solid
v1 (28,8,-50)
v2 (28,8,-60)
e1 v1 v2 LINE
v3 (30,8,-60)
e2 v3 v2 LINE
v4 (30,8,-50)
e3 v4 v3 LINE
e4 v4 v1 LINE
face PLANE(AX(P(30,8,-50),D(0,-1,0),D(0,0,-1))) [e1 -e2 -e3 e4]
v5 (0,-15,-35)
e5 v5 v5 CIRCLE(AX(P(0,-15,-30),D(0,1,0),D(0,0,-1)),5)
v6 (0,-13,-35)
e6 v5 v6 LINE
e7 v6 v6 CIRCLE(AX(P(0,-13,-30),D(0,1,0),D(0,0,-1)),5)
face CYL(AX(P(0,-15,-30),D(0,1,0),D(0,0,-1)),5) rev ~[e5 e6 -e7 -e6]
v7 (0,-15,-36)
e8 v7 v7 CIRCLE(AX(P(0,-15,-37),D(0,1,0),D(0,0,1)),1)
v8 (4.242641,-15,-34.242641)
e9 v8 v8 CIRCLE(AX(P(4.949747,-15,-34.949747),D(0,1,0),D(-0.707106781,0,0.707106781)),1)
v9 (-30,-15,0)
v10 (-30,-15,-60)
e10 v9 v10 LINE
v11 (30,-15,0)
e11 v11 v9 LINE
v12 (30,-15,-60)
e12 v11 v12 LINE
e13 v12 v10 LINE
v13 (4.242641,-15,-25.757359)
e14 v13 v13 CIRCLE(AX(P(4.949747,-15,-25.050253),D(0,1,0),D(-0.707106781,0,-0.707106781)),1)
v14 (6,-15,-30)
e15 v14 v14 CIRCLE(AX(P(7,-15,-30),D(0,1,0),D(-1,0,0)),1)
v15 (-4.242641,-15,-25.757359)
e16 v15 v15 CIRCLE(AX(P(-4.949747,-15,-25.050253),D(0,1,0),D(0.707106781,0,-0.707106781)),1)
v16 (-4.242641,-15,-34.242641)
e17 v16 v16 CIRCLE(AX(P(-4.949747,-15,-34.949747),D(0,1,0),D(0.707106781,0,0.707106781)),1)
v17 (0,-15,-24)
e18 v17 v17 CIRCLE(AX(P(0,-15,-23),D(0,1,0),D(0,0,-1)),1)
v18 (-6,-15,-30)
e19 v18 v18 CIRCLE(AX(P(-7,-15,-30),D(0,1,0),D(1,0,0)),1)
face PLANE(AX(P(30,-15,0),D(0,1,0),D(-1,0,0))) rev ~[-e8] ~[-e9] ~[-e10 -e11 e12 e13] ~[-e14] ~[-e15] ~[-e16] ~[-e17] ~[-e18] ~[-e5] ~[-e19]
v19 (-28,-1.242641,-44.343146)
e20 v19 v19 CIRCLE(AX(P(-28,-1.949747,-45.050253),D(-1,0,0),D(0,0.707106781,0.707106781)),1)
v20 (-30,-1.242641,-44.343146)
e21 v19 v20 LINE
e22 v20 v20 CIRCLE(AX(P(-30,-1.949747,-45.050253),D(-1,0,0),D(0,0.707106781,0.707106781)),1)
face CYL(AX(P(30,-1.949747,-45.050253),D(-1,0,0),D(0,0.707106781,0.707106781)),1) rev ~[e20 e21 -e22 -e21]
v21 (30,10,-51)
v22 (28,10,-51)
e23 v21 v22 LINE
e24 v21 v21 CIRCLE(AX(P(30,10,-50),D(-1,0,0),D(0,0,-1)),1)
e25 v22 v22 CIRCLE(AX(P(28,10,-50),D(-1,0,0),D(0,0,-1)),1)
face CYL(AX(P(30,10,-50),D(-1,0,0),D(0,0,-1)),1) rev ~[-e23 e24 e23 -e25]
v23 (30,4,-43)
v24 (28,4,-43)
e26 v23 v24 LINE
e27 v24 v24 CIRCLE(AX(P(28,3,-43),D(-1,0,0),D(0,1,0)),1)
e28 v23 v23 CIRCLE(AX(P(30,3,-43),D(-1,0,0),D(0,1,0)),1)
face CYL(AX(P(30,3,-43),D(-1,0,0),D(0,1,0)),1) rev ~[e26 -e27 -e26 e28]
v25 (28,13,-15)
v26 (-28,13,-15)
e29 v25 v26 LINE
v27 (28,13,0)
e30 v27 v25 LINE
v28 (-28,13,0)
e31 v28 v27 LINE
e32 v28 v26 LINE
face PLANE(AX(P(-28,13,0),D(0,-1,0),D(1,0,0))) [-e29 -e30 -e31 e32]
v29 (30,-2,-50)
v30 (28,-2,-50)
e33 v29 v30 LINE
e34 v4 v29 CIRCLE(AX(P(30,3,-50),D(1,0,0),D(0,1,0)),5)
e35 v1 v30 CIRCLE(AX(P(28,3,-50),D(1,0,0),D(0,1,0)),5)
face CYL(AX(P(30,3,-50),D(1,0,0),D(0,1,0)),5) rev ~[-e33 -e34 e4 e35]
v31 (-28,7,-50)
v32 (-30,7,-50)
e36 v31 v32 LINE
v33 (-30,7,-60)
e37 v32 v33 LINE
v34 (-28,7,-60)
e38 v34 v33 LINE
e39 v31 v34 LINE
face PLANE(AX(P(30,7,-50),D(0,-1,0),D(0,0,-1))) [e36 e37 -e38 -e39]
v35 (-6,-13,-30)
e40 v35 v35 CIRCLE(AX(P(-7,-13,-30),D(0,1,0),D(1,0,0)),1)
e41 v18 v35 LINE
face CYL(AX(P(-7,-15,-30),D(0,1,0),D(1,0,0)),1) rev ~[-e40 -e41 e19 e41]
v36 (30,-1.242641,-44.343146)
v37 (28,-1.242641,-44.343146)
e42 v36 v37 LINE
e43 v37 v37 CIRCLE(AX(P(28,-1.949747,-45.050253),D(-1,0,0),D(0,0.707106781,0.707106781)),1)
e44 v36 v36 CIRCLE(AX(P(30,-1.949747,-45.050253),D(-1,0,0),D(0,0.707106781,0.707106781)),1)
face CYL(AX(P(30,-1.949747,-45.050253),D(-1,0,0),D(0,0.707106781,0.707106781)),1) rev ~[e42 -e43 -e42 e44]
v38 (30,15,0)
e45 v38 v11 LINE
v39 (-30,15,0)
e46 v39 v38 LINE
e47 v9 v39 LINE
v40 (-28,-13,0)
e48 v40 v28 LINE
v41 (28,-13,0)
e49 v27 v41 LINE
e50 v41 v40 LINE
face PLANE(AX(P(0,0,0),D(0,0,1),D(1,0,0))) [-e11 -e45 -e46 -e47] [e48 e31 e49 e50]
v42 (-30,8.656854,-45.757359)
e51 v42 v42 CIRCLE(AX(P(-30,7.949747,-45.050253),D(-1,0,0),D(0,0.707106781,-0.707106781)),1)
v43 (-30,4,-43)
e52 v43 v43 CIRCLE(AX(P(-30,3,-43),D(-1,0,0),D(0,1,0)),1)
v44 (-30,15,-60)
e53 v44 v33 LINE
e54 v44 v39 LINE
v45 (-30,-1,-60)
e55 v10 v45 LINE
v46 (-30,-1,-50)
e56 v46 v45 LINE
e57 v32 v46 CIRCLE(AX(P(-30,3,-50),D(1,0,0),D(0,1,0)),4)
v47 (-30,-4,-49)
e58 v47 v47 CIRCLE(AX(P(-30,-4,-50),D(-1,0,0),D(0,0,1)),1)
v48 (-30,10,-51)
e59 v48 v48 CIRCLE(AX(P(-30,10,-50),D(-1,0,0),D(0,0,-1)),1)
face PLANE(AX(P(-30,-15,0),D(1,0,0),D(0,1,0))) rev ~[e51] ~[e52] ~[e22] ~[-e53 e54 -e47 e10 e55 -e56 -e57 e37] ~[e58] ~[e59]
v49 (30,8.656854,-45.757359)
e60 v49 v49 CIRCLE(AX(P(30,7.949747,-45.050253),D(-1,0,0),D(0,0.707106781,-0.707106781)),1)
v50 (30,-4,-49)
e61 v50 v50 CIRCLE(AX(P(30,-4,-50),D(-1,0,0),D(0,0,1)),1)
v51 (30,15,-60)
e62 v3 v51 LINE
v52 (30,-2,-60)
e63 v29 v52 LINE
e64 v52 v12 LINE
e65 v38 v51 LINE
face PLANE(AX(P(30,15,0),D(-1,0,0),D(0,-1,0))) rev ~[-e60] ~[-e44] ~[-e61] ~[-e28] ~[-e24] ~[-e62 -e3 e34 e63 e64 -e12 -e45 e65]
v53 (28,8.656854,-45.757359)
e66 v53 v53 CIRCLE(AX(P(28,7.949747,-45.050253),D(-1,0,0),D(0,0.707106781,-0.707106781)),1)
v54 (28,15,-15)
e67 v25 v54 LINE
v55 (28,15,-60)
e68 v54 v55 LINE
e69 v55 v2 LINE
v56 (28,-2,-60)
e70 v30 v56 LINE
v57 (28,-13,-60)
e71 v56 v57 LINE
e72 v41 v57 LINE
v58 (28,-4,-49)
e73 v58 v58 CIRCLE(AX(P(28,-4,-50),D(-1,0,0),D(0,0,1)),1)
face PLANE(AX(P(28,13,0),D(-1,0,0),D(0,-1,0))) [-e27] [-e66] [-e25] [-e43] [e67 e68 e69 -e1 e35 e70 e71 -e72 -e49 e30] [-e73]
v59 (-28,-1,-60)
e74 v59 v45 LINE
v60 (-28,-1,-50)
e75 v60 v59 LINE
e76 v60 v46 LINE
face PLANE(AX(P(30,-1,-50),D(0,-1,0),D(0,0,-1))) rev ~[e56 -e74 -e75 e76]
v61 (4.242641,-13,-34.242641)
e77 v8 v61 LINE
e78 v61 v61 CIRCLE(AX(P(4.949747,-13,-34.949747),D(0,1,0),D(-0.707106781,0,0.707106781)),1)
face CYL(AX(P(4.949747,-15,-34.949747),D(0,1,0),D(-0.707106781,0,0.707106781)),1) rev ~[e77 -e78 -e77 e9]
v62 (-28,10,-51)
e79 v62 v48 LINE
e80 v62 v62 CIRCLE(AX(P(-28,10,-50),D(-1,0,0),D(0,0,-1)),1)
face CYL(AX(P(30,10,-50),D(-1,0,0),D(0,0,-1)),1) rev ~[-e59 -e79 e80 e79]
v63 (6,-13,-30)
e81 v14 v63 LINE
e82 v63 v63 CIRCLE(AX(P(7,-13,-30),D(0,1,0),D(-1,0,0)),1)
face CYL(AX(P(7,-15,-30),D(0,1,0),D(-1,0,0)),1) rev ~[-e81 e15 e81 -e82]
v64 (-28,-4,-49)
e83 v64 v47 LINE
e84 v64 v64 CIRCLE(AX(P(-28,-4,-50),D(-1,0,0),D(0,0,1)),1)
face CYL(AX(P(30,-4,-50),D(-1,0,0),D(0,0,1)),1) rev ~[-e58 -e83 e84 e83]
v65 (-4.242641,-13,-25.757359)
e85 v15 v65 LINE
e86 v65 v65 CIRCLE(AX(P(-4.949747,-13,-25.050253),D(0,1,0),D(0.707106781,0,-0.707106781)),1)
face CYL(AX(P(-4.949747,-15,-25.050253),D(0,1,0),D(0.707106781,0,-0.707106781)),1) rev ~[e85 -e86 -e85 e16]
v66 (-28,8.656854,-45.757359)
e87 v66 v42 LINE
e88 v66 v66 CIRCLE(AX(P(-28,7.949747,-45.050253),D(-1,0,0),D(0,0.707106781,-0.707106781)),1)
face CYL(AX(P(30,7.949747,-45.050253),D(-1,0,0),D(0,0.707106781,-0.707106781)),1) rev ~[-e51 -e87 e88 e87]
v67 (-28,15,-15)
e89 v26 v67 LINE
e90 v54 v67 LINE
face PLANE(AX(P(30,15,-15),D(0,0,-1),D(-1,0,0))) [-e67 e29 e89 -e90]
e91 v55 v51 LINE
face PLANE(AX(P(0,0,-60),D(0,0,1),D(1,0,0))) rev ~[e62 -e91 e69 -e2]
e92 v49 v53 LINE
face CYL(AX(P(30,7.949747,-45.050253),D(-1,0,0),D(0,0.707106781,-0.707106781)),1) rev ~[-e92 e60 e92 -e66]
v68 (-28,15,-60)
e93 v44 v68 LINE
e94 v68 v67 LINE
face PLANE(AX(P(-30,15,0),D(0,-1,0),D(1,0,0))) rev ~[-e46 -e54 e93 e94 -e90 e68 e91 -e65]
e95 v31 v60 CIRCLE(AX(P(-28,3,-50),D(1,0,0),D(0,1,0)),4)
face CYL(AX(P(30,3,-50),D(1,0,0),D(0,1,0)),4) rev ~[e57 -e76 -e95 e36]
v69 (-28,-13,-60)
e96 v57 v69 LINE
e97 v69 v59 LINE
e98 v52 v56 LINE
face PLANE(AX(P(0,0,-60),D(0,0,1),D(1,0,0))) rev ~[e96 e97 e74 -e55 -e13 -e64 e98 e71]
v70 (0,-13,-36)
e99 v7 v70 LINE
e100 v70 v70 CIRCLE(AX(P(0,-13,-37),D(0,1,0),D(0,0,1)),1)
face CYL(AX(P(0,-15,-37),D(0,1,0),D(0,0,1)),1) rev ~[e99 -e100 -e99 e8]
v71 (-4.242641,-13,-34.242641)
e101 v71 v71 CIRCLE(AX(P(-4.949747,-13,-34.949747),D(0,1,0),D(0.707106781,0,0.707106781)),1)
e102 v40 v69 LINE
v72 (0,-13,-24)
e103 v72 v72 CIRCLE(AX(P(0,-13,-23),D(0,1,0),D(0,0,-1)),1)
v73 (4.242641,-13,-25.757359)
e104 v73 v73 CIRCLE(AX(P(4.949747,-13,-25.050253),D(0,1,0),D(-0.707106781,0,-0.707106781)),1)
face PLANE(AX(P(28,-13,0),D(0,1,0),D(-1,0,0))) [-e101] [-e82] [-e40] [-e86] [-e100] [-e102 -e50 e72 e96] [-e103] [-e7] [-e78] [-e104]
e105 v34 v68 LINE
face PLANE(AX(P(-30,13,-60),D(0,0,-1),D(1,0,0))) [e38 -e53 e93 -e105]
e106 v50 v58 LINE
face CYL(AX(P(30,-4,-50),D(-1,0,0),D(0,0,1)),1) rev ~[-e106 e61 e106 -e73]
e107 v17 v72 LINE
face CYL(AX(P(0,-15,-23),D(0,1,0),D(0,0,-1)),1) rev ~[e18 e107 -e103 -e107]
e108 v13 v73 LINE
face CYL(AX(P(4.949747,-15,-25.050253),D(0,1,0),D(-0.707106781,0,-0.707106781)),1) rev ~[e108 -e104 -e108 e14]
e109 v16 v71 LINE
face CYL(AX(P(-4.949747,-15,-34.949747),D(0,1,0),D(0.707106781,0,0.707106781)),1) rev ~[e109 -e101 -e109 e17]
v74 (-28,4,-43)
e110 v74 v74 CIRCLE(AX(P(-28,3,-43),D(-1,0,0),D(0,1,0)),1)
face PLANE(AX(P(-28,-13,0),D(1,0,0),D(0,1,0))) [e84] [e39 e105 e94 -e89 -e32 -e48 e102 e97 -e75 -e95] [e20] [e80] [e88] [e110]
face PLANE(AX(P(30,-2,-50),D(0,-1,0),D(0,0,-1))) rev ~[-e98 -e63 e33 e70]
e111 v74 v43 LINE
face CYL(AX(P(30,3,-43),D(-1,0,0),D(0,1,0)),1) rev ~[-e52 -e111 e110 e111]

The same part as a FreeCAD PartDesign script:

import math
import FreeCAD as App
import Part
import Sketcher


def add_polygon(sketch, points):
    """Adds a closed chain of lines whose ends are joined by coincident constraints."""
    first, n = sketch.GeometryCount, len(points)
    for a, b in zip(points, points[1:] + points[:1]):
        sketch.addGeometry(Part.LineSegment(App.Vector(*a, 0), App.Vector(*b, 0)), False)
    for i in range(n):
        sketch.addConstraint(Sketcher.Constraint("Coincident", first + i, 2, first + (i + 1) % n, 1))

doc = App.newDocument("Part")
body = doc.addObject("PartDesign::Body", "Body")

# Sketch on XY plane
sketch1 = body.newObject("Sketcher::SketchObject", "Sketch")
sketch1.AttachmentSupport = (doc.getObject("XY_Plane"), [""])
sketch1.MapMode = "FlatFace"
add_polygon(sketch1, [(30, 15), (-30, 15), (-30, -15), (30, -15)])  # lines 0-3
add_polygon(sketch1, [(-28, -13), (-28, 13), (28, 13), (28, -13)])  # lines 4-7
sketch1.addConstraint(Sketcher.Constraint("Horizontal", 0))
sketch1.addConstraint(Sketcher.Constraint("Vertical", 1))
sketch1.addConstraint(Sketcher.Constraint("Horizontal", 2))
sketch1.addConstraint(Sketcher.Constraint("Vertical", 3))
sketch1.addConstraint(Sketcher.Constraint("Vertical", 4))
sketch1.addConstraint(Sketcher.Constraint("Horizontal", 5))
sketch1.addConstraint(Sketcher.Constraint("Vertical", 6))
sketch1.addConstraint(Sketcher.Constraint("Horizontal", 7))
sketch1.addConstraint(Sketcher.Constraint("Symmetric", 0, 2, 2, 2, -1, 1))
sketch1.addConstraint(Sketcher.Constraint("Symmetric", 4, 2, 6, 2, -1, 1))
sketch1.addConstraint(Sketcher.Constraint("DistanceX", 0, 2, 0, 1, 60.0))
sketch1.addConstraint(Sketcher.Constraint("DistanceX", 5, 1, 5, 2, 56.0))
sketch1.addConstraint(Sketcher.Constraint("DistanceY", 1, 2, 1, 1, 30.0))
sketch1.addConstraint(Sketcher.Constraint("DistanceY", 4, 1, 4, 2, 26.0))
pad1 = body.newObject("PartDesign::Pad", "Pad")
pad1.Profile = sketch1
pad1.Length = 60
pad1.Reversed = True

# Sketch on XZ plane
sketch2 = body.newObject("Sketcher::SketchObject", "Sketch001")
sketch2.AttachmentSupport = (doc.getObject("XZ_Plane"), [""])
sketch2.MapMode = "FlatFace"
sketch2.AttachmentOffset = App.Placement(App.Vector(0, 0, -15), App.Rotation())
add_polygon(sketch2, [(-30, -15), (30, -15), (30, -60), (-30, -60)])  # lines 0-3
sketch2.addConstraint(Sketcher.Constraint("Horizontal", 0))
sketch2.addConstraint(Sketcher.Constraint("Vertical", 1))
sketch2.addConstraint(Sketcher.Constraint("Horizontal", 2))
sketch2.addConstraint(Sketcher.Constraint("Vertical", 3))
sketch2.addConstraint(Sketcher.Constraint("DistanceY", 0, 2, -1, 1, 15.0))
sketch2.addConstraint(Sketcher.Constraint("DistanceX", 0, 1, 0, 2, 60.0))
sketch2.addConstraint(Sketcher.Constraint("DistanceY", 1, 2, 1, 1, 45.0))
sketch2.addConstraint(Sketcher.Constraint("DistanceX", -1, 1, 0, 2, 30.0))
pocket1 = body.newObject("PartDesign::Pocket", "Pocket")
pocket1.Profile = sketch2
pocket1.Length = 2
pocket1.Reversed = True

# Sketch on YZ plane
sketch3 = body.newObject("Sketcher::SketchObject", "Sketch002")
sketch3.AttachmentSupport = (doc.getObject("YZ_Plane"), [""])
sketch3.MapMode = "FlatFace"
sketch3.AttachmentOffset = App.Placement(App.Vector(0, 0, 30), App.Rotation())
sketch3.addGeometry(Part.LineSegment(App.Vector(-1, -60, 0), App.Vector(7, -60, 0)), False)
sketch3.addGeometry(Part.LineSegment(App.Vector(7, -60, 0), App.Vector(7, -50, 0)), False)
sketch3.addGeometry(Part.ArcOfCircle(Part.Circle(App.Vector(3, -50, 0), App.Vector(0, 0, 1), 4), math.radians(0), math.radians(180)), False)
sketch3.addGeometry(Part.LineSegment(App.Vector(-1, -50, 0), App.Vector(-1, -60, 0)), False)
sketch3.addConstraint(Sketcher.Constraint("Coincident", 0, 2, 1, 1))
sketch3.addConstraint(Sketcher.Constraint("Tangent", 1, 2, 2, 1))
sketch3.addConstraint(Sketcher.Constraint("Tangent", 2, 2, 3, 1))
sketch3.addConstraint(Sketcher.Constraint("Coincident", 3, 2, 0, 1))
sketch3.addConstraint(Sketcher.Constraint("Horizontal", 0))
sketch3.addConstraint(Sketcher.Constraint("Vertical", 1))
sketch3.addConstraint(Sketcher.Constraint("Vertical", 3))
sketch3.addConstraint(Sketcher.Constraint("Radius", 2, 4.0))
sketch3.addConstraint(Sketcher.Constraint("DistanceY", 1, 1, 1, 2, 10.0))
sketch3.addConstraint(Sketcher.Constraint("DistanceX", -1, 1, 2, 3, 3.0))
sketch3.addConstraint(Sketcher.Constraint("DistanceY", 2, 3, -1, 1, 50.0))
pocket2 = body.newObject("PartDesign::Pocket", "Pocket001")
pocket2.Profile = sketch3
pocket2.Length = 60

# Sketch on YZ plane
sketch4 = body.newObject("Sketcher::SketchObject", "Sketch003")
sketch4.AttachmentSupport = (doc.getObject("YZ_Plane"), [""])
sketch4.MapMode = "FlatFace"
sketch4.AttachmentOffset = App.Placement(App.Vector(0, 0, 30), App.Rotation())
sketch4.addGeometry(Part.ArcOfCircle(Part.Circle(App.Vector(3, -50, 0), App.Vector(0, 0, 1), 4), math.radians(0), math.radians(180)), False)
sketch4.addGeometry(Part.LineSegment(App.Vector(7, -50, 0), App.Vector(7, -60, 0)), False)
sketch4.addGeometry(Part.LineSegment(App.Vector(7, -60, 0), App.Vector(8, -60, 0)), False)
sketch4.addGeometry(Part.LineSegment(App.Vector(8, -60, 0), App.Vector(8, -50, 0)), False)
sketch4.addGeometry(Part.ArcOfCircle(Part.Circle(App.Vector(3, -50, 0), App.Vector(0, 0, 1), 5), math.radians(0), math.radians(180)), False)
sketch4.addGeometry(Part.LineSegment(App.Vector(-2, -50, 0), App.Vector(-2, -60, 0)), False)
sketch4.addGeometry(Part.LineSegment(App.Vector(-2, -60, 0), App.Vector(-1, -60, 0)), False)
sketch4.addGeometry(Part.LineSegment(App.Vector(-1, -60, 0), App.Vector(-1, -50, 0)), False)
sketch4.addConstraint(Sketcher.Constraint("Tangent", 0, 1, 1, 1))
sketch4.addConstraint(Sketcher.Constraint("Coincident", 1, 2, 2, 1))
sketch4.addConstraint(Sketcher.Constraint("Coincident", 2, 2, 3, 1))
sketch4.addConstraint(Sketcher.Constraint("Tangent", 3, 2, 4, 1))
sketch4.addConstraint(Sketcher.Constraint("Tangent", 4, 2, 5, 1))
sketch4.addConstraint(Sketcher.Constraint("Coincident", 5, 2, 6, 1))
sketch4.addConstraint(Sketcher.Constraint("Coincident", 6, 2, 7, 1))
sketch4.addConstraint(Sketcher.Constraint("Tangent", 7, 2, 0, 2))
sketch4.addConstraint(Sketcher.Constraint("Vertical", 1))
sketch4.addConstraint(Sketcher.Constraint("Horizontal", 2))
sketch4.addConstraint(Sketcher.Constraint("Vertical", 3))
sketch4.addConstraint(Sketcher.Constraint("Vertical", 5))
sketch4.addConstraint(Sketcher.Constraint("Horizontal", 6))
sketch4.addConstraint(Sketcher.Constraint("Vertical", 7))
sketch4.addConstraint(Sketcher.Constraint("Coincident", 4, 3, 0, 3))
sketch4.addConstraint(Sketcher.Constraint("Horizontal", 2, 2, 5, 2))
sketch4.addConstraint(Sketcher.Constraint("Radius", 4, 5.0))
sketch4.addConstraint(Sketcher.Constraint("DistanceY", 1, 2, 1, 1, 10.0))
sketch4.addConstraint(Sketcher.Constraint("Radius", 0, 4.0))
sketch4.addConstraint(Sketcher.Constraint("DistanceX", -1, 1, 0, 3, 3.0))
sketch4.addConstraint(Sketcher.Constraint("DistanceY", 0, 3, -1, 1, 50.0))
pocket3 = body.newObject("PartDesign::Pocket", "Pocket002")
pocket3.Profile = sketch4
pocket3.Length = 2

# Sketch on YZ plane
sketch5 = body.newObject("Sketcher::SketchObject", "Sketch004")
sketch5.AttachmentSupport = (doc.getObject("YZ_Plane"), [""])
sketch5.MapMode = "FlatFace"
sketch5.AttachmentOffset = App.Placement(App.Vector(0, 0, 30), App.Rotation())
sketch5.addGeometry(Part.Circle(App.Vector(10, -50, 0), App.Vector(0, 0, 1), 1), False)
sketch5.addConstraint(Sketcher.Constraint("Diameter", 0, 2.0))
sketch5.addConstraint(Sketcher.Constraint("DistanceX", -1, 1, 0, 3, 10.0))
sketch5.addConstraint(Sketcher.Constraint("DistanceY", 0, 3, -1, 1, 50.0))
doc.recompute()
hole = body.newObject("PartDesign::Hole", "Hole")
hole.Profile = sketch5
hole.ThreadType = "None"
hole.Diameter = 2
hole.DepthType = "ThroughAll"
doc.recompute()

datumline = body.newObject("PartDesign::Line", "DatumLine")
datumline.Placement = App.Placement(App.Vector(0, 3, -50), App.Rotation(App.Vector(0, 0, 1), App.Vector(1, 0, 0)))
polarpattern = body.newObject("PartDesign::PolarPattern", "PolarPattern")
polarpattern.Originals = [hole]
polarpattern.Axis = (datumline, [""])
polarpattern.Angle = 180
polarpattern.Occurrences = 5
body.Tip = polarpattern

# Sketch on XZ plane
sketch6 = body.newObject("Sketcher::SketchObject", "Sketch005")
sketch6.AttachmentSupport = (doc.getObject("XZ_Plane"), [""])
sketch6.MapMode = "FlatFace"
sketch6.AttachmentOffset = App.Placement(App.Vector(0, 0, 15), App.Rotation())
sketch6.addGeometry(Part.Circle(App.Vector(0, -30, 0), App.Vector(0, 0, 1), 5), False)
sketch6.addConstraint(Sketcher.Constraint("PointOnObject", 0, 3, -2))
sketch6.addConstraint(Sketcher.Constraint("Diameter", 0, 10.0))
sketch6.addConstraint(Sketcher.Constraint("DistanceY", 0, 3, -1, 1, 30.0))
doc.recompute()
hole2 = body.newObject("PartDesign::Hole", "Hole001")
hole2.Profile = sketch6
hole2.ThreadType = "None"
hole2.Diameter = 10
hole2.DepthType = "ThroughAll"

# Sketch on XZ plane
sketch7 = body.newObject("Sketcher::SketchObject", "Sketch006")
sketch7.AttachmentSupport = (doc.getObject("XZ_Plane"), [""])
sketch7.MapMode = "FlatFace"
sketch7.AttachmentOffset = App.Placement(App.Vector(0, 0, 15), App.Rotation())
sketch7.addGeometry(Part.Circle(App.Vector(0, -23, 0), App.Vector(0, 0, 1), 1), False)
sketch7.addConstraint(Sketcher.Constraint("PointOnObject", 0, 3, -2))
sketch7.addConstraint(Sketcher.Constraint("Diameter", 0, 2.0))
sketch7.addConstraint(Sketcher.Constraint("DistanceY", 0, 3, -1, 1, 23.0))
doc.recompute()
hole3 = body.newObject("PartDesign::Hole", "Hole002")
hole3.Profile = sketch7
hole3.ThreadType = "None"
hole3.Diameter = 2
hole3.DepthType = "Dimension"
hole3.Depth = 2
hole3.DrillPoint = "Angled"
hole3.DrillPointAngle = 118
doc.recompute()

datumline2 = body.newObject("PartDesign::Line", "DatumLine001")
datumline2.Placement = App.Placement(App.Vector(0, 0, -30), App.Rotation(App.Vector(0, 0, 1), App.Vector(0, 1, 0)))
polarpattern2 = body.newObject("PartDesign::PolarPattern", "PolarPattern001")
polarpattern2.Originals = [hole3]
polarpattern2.Axis = (datumline2, [""])
polarpattern2.Angle = 360
polarpattern2.Occurrences = 8
body.Tip = polarpattern2

# Sketch on XZ plane
sketch8 = body.newObject("Sketcher::SketchObject", "Sketch007")
sketch8.AttachmentSupport = (doc.getObject("XZ_Plane"), [""])
sketch8.MapMode = "FlatFace"
sketch8.AttachmentOffset = App.Placement(App.Vector(0, 0, -13), App.Rotation())
add_polygon(sketch8, [(28, -60), (28, -15), (30, -15), (30, -60)])  # lines 0-3
add_polygon(sketch8, [(-28, -60), (-30, -60), (-30, -15), (-28, -15)])  # lines 4-7
sketch8.addConstraint(Sketcher.Constraint("Vertical", 0))
sketch8.addConstraint(Sketcher.Constraint("Horizontal", 1))
sketch8.addConstraint(Sketcher.Constraint("Vertical", 2))
sketch8.addConstraint(Sketcher.Constraint("Horizontal", 3))
sketch8.addConstraint(Sketcher.Constraint("Horizontal", 4))
sketch8.addConstraint(Sketcher.Constraint("Vertical", 5))
sketch8.addConstraint(Sketcher.Constraint("Horizontal", 6))
sketch8.addConstraint(Sketcher.Constraint("Vertical", 7))
sketch8.addConstraint(Sketcher.Constraint("Symmetric", 2, 2, 4, 2, -2))
sketch8.addConstraint(Sketcher.Constraint("Symmetric", 0, 2, 6, 2, -2))
sketch8.addConstraint(Sketcher.Constraint("DistanceX", 1, 1, 1, 2, 2.0))
sketch8.addConstraint(Sketcher.Constraint("DistanceY", 0, 1, 0, 2, 45.0))
sketch8.addConstraint(Sketcher.Constraint("DistanceX", 6, 2, 0, 2, 56.0))
sketch8.addConstraint(Sketcher.Constraint("DistanceY", 0, 2, -1, 1, 15.0))
pad2 = body.newObject("PartDesign::Pad", "Pad001")
pad2.Profile = sketch8
pad2.Length = 2
pad2.Reversed = True

doc.recompute()
